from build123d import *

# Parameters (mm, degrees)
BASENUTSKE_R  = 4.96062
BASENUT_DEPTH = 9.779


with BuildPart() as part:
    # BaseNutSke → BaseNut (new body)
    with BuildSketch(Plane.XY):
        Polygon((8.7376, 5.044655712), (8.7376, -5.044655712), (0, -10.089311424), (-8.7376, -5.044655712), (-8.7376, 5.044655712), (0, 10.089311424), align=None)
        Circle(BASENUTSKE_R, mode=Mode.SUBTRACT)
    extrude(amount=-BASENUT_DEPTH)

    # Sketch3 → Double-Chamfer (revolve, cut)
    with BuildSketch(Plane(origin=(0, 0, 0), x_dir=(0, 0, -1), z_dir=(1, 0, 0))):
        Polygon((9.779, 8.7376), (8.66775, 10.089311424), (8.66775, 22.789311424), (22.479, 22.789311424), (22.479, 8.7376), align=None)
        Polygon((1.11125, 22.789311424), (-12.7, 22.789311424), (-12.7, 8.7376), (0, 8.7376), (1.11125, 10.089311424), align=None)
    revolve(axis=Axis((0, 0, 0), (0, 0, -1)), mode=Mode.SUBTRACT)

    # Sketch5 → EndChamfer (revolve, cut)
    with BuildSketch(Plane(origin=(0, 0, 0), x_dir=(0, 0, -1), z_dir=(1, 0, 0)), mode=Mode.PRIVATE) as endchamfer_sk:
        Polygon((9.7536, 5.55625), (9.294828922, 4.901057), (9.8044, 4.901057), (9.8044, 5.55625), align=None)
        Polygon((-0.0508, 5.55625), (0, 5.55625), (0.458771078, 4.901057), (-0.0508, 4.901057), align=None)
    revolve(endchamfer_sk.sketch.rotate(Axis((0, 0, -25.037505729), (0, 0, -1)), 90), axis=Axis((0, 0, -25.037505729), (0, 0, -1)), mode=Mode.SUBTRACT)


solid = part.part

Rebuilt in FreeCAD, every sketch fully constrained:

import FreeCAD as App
import Part
import Sketcher

V = App.Vector
Q = App.Units.Quantity


def add_polygon(sketch, points):
    """Adds a closed chain of lines whose ends are joined by coincident constraints."""
    first, n = sketch.GeometryCount, len(points)
    for a, b in zip(points, points[1:] + points[:1]):
        sketch.addGeometry(Part.LineSegment(App.Vector(*a, 0), App.Vector(*b, 0)), False)
    for i in range(n):
        sketch.addConstraint(Sketcher.Constraint("Coincident", first + i, 2, first + (i + 1) % n, 1))

doc = App.newDocument("Part")
body = doc.addObject("PartDesign::Body", "Body")

sketch1 = doc.addObject("Sketcher::SketchObject", "Sketch")
body.addObject(sketch1)
sketch1.AttachmentSupport = (doc.XY_Plane, [""])
sketch1.MapMode = "FlatFace"
add_polygon(sketch1, [(8.7, -5), (8.7, 5), (0, 10.1), (-8.7, 5), (-8.7, -5), (0, -10.1)])
sketch1.addGeometry(Part.Circle(V(0, 0, 0), V(0, 0, 1), 5), False)
sketch1.addConstraint(Sketcher.Constraint("Vertical", 0))
sketch1.addConstraint(Sketcher.Constraint("Vertical", 3))
sketch1.addConstraint(Sketcher.Constraint("Coincident", 6, 3, -1, 1))
sketch1.addConstraint(Sketcher.Constraint("Symmetric", 0, 2, 3, 2, -1, 1))
sketch1.addConstraint(Sketcher.Constraint("Symmetric", 1, 2, 4, 2, -1, 1))
sketch1.addConstraint(Sketcher.Constraint("PointOnObject", 1, 2, -2))
sketch1.addConstraint(Sketcher.Constraint("Parallel", 2, 5))
sketch1.addConstraint(Sketcher.Constraint("Horizontal", 0, 2, 2, 2))
sketch1.addConstraint(Sketcher.Constraint("Angle", 1, Q("150 deg")))
sketch1.addConstraint(Sketcher.Constraint("Diameter", 6, Q("0.3906 in")))
sketch1.addConstraint(Sketcher.Constraint("DistanceX", -1, 1, 0, 2, Q("0.344 in")))
sketch1.addConstraint(Sketcher.Constraint("DistanceY", 0, 1, 0, 2, 10.089311))
pad1 = doc.addObject("PartDesign::Pad", "Pad")
body.addObject(pad1)
pad1.Profile = sketch1
pad1.Length = Q("0.385 in")
pad1.Reversed = True

sketch2 = doc.addObject("Sketcher::SketchObject", "Sketch001")
body.addObject(sketch2)
sketch2.AttachmentSupport = (doc.YZ_Plane, [""])
sketch2.MapMode = "FlatFace"
add_polygon(sketch2, [(10.1, -8.7), (8.7, -9.8), (8.7, -22.5), (22.8, -22.5), (22.8, -8.7)])
add_polygon(sketch2, [(22.8, -1.1), (22.8, 12.7), (8.7, 12.7), (8.7, 0), (10.1, -1.1)])
sketch2.addConstraint(Sketcher.Constraint("Vertical", 1))
sketch2.addConstraint(Sketcher.Constraint("Horizontal", 2))
sketch2.addConstraint(Sketcher.Constraint("Vertical", 3))
sketch2.addConstraint(Sketcher.Constraint("Horizontal", 4))
sketch2.addConstraint(Sketcher.Constraint("Vertical", 5))
sketch2.addConstraint(Sketcher.Constraint("Horizontal", 6))
sketch2.addConstraint(Sketcher.Constraint("Vertical", 7))
sketch2.addConstraint(Sketcher.Constraint("Horizontal", 9))
sketch2.addConstraint(Sketcher.Constraint("PointOnObject", 7, 2, -1))
sketch2.addConstraint(Sketcher.Constraint("Vertical", 3, 2, 5, 2))
sketch2.addConstraint(Sketcher.Constraint("Vertical", 1, 2, 6, 2))
sketch2.addConstraint(Sketcher.Constraint("Vertical", 4, 2, 8, 2))
sketch2.addConstraint(Sketcher.Constraint("Equal", 9, 1))
sketch2.addConstraint(Sketcher.Constraint("Equal", 3, 5))
sketch2.addConstraint(Sketcher.Constraint("Equal", 1, 7))
sketch2.addConstraint(Sketcher.Constraint("DistanceX", 4, 2, 4, 1, Q("0.5 in")))
sketch2.addConstraint(Sketcher.Constraint("DistanceX", -1, 1, 0, 2, Q("0.344 in")))
sketch2.addConstraint(Sketcher.Constraint("DistanceY", 0, 2, -1, 1, Q("0.385 in")))
sketch2.addConstraint(Sketcher.Constraint("DistanceY", 4, 2, 8, 2, Q("0.2975 in")))
sketch2.addConstraint(Sketcher.Constraint("DistanceX", 2, 1, 2, 2, 14.051711))
groove = doc.addObject("PartDesign::Groove", "Groove")
body.addObject(groove)
groove.Profile = sketch2
groove.ReferenceAxis = (sketch2, ["V_Axis"])
groove.Angle = 360

sketch3 = doc.addObject("Sketcher::SketchObject", "Sketch002")
body.addObject(sketch3)
sketch3.AttachmentSupport = (doc.YZ_Plane, [""])
sketch3.MapMode = "FlatFace"
add_polygon(sketch3, [(5.56, -9.75), (4.9, -9.29), (4.9, -9.8), (5.56, -9.8)])
add_polygon(sketch3, [(5.56, 0), (5.56, 0.05), (4.9, 0.05), (4.9, -0.46)])
sketch3.addConstraint(Sketcher.Constraint("Vertical", 1))
sketch3.addConstraint(Sketcher.Constraint("Horizontal", 2))
sketch3.addConstraint(Sketcher.Constraint("Vertical", 3))
sketch3.addConstraint(Sketcher.Constraint("Vertical", 4))
sketch3.addConstraint(Sketcher.Constraint("Horizontal", 5))
sketch3.addConstraint(Sketcher.Constraint("Vertical", 6))
sketch3.addConstraint(Sketcher.Constraint("PointOnObject", 7, 2, -1))
sketch3.addConstraint(Sketcher.Constraint("Vertical", 3, 2, 4, 2))
sketch3.addConstraint(Sketcher.Constraint("Vertical", 1, 2, 5, 2))
sketch3.addConstraint(Sketcher.Constraint("Equal", 3, 4))
sketch3.addConstraint(Sketcher.Constraint("Equal", 1, 6))
sketch3.addConstraint(Sketcher.Constraint("Angle", 0, Q("145 deg")))
sketch3.addConstraint(Sketcher.Constraint("DistanceY", 3, 1, 3, 2, Q("0.002 in")))
sketch3.addConstraint(Sketcher.Constraint("DistanceY", 1, 2, -1, 1, Q("0.386 in")))
sketch3.addConstraint(Sketcher.Constraint("DistanceX", -1, 1, 2, 2, Q("0.21875 in")))
sketch3.addConstraint(Sketcher.Constraint("DistanceY", 1, 2, 1, 1, 0.509571))
groove2 = doc.addObject("PartDesign::Groove", "Groove001")
body.addObject(groove2)
groove2.Profile = sketch3
groove2.ReferenceAxis = (sketch3, ["V_Axis"])
groove2.Angle = 360

doc.recompute()
